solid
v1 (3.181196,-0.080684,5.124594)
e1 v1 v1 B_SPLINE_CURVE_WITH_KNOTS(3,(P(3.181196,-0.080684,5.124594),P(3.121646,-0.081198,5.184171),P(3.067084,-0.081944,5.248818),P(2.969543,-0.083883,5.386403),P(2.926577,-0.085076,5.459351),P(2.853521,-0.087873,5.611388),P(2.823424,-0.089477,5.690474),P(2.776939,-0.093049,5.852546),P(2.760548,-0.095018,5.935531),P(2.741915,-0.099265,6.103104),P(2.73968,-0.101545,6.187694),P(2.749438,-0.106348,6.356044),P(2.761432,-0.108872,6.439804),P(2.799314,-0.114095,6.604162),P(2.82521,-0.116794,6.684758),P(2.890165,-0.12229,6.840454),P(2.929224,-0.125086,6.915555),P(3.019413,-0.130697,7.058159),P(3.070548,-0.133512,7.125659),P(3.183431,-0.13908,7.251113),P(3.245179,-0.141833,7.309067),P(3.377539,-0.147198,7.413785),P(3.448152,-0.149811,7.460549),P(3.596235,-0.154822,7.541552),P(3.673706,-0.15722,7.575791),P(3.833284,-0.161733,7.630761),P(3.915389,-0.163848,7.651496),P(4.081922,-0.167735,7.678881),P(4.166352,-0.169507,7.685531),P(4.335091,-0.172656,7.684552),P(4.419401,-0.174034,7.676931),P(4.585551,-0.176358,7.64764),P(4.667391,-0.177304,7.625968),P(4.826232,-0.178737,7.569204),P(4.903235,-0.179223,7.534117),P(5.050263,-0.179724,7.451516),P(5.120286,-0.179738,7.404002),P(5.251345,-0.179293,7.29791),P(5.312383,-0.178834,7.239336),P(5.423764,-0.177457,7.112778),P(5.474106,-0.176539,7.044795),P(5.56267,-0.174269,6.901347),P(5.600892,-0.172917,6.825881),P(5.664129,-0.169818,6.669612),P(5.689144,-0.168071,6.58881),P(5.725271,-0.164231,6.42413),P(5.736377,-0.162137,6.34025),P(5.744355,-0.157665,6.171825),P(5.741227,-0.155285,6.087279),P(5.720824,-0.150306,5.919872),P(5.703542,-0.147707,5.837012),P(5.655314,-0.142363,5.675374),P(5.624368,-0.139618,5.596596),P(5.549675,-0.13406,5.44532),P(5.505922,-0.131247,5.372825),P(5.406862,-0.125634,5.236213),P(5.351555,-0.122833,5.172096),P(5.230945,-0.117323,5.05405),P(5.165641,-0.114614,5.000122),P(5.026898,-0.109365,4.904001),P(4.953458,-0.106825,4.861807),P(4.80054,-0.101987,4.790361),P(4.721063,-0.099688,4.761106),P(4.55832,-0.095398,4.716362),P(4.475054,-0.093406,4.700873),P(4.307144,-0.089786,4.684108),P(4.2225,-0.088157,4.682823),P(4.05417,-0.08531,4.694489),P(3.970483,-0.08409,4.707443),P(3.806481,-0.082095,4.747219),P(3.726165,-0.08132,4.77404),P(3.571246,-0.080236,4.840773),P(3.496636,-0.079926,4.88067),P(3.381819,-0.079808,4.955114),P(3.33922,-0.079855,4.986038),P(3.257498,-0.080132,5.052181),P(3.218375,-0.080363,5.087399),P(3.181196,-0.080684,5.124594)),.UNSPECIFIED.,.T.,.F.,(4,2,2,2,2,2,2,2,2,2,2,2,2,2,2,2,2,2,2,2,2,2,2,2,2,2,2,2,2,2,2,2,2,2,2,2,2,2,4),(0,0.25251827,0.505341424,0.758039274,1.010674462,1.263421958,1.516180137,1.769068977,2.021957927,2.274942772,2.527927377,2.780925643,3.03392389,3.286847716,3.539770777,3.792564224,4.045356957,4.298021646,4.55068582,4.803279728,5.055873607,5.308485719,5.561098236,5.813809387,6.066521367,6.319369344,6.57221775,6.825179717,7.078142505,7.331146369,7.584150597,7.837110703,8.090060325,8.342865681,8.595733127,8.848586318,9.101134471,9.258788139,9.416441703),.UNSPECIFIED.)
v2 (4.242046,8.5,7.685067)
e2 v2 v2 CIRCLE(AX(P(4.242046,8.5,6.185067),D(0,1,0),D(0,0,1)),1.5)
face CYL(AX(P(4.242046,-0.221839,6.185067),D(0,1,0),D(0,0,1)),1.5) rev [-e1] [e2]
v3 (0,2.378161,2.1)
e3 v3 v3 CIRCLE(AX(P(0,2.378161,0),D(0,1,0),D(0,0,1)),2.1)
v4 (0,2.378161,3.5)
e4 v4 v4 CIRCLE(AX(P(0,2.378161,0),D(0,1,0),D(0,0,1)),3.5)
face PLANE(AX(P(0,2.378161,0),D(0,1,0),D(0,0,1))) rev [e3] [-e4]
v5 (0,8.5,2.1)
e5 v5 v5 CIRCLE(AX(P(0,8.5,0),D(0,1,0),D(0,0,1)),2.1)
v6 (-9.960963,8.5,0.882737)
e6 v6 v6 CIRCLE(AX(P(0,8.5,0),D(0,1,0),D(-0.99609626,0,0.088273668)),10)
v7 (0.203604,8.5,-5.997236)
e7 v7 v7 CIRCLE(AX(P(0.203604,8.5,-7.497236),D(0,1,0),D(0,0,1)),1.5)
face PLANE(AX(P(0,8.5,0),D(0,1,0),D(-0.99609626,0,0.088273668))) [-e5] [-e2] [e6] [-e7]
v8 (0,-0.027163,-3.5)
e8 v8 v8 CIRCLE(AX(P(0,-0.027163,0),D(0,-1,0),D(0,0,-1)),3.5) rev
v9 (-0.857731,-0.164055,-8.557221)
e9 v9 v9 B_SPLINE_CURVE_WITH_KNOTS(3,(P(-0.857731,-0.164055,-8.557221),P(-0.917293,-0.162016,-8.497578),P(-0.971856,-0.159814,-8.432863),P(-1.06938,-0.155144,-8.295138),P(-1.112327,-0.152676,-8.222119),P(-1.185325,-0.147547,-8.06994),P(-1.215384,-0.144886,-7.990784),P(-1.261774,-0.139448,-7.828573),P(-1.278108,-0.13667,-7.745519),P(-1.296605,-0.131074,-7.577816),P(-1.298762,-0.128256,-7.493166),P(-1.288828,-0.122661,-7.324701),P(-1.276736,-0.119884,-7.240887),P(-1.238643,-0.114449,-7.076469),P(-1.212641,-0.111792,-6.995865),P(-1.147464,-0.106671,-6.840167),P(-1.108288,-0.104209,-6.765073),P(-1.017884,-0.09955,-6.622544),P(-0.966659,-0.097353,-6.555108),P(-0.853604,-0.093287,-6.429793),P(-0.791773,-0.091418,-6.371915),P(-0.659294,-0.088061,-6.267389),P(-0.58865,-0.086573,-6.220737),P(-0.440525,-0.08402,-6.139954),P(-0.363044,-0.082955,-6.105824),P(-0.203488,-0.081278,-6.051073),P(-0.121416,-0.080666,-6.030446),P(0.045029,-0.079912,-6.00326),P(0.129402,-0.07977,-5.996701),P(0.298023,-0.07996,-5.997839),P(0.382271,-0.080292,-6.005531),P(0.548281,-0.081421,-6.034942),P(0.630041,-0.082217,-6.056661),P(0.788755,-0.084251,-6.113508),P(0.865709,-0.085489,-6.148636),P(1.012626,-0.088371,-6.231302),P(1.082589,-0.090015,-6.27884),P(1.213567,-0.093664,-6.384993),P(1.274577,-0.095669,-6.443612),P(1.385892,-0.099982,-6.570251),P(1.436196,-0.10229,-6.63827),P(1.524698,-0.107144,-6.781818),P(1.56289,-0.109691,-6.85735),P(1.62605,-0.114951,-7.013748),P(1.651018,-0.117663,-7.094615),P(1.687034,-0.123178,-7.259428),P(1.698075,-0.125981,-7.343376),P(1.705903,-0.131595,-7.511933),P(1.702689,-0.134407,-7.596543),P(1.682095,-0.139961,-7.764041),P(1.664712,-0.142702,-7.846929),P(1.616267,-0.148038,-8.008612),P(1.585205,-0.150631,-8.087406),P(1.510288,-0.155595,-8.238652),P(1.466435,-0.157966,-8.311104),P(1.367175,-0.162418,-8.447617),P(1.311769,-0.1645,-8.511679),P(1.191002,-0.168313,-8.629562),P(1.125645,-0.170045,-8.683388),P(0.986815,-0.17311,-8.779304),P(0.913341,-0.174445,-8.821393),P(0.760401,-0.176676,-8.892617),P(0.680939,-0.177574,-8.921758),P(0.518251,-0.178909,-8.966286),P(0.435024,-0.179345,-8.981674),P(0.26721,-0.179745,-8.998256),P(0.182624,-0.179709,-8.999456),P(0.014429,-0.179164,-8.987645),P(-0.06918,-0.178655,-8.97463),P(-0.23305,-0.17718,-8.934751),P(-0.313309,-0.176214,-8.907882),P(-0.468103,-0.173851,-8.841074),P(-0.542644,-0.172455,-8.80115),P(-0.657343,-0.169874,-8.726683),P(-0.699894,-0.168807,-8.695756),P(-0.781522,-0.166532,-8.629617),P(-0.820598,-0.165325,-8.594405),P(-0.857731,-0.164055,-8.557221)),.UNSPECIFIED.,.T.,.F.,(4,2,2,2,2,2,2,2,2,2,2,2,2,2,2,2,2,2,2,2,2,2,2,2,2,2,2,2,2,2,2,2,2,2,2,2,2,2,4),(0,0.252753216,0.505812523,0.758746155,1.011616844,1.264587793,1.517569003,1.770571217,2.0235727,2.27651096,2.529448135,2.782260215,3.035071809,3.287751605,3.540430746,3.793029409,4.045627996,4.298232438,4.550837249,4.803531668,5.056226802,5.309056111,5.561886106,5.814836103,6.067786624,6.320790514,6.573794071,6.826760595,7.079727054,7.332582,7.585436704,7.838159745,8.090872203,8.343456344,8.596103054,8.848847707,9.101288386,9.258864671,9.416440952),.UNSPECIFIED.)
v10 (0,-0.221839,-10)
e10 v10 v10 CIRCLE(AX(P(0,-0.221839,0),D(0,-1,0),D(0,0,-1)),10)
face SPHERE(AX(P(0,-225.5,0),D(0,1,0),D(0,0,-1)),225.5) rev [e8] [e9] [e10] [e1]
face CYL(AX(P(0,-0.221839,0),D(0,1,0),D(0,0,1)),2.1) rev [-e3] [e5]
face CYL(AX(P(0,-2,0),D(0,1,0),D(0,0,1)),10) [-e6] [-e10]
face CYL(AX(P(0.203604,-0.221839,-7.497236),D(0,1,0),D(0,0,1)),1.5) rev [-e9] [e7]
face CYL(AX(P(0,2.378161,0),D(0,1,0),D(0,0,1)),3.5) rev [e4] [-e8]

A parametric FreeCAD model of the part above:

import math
import FreeCAD as App
import Part
import Sketcher

V = App.Vector


def add_polygon(sketch, points):
    """Adds a closed chain of lines whose ends are joined by coincident constraints."""
    first, n = sketch.GeometryCount, len(points)
    for a, b in zip(points, points[1:] + points[:1]):
        sketch.addGeometry(Part.LineSegment(App.Vector(*a, 0), App.Vector(*b, 0)), False)
    for i in range(n):
        sketch.addConstraint(Sketcher.Constraint("Coincident", first + i, 2, first + (i + 1) % n, 1))

doc = App.newDocument("Part")
body = doc.addObject("PartDesign::Body", "Body")

# Sketch on XZ plane
sketch1 = doc.addObject("Sketcher::SketchObject", "Sketch")
body.addObject(sketch1)
sketch1.AttachmentSupport = (doc.XZ_Plane, [""])
sketch1.MapMode = "FlatFace"
sketch1.addGeometry(Part.Circle(V(0, 0, 0), V(0, 0, 1), 10), False)
sketch1.addConstraint([
    Sketcher.Constraint("Coincident", 0, 3, -1, 1),
    Sketcher.Constraint("Diameter", 0, 20.0),
])
pad1 = doc.addObject("PartDesign::Pad", "Pad")
body.addObject(pad1)
pad1.Profile = sketch1
pad1.Type = "TwoLengths"
pad1.Length = 8.5
pad1.Length2 = 2
pad1.Reversed = True

# Sketch on YZ plane
sketch2 = doc.addObject("Sketcher::SketchObject", "Sketch001")
body.addObject(sketch2)
sketch2.AttachmentSupport = (doc.YZ_Plane, [""])
sketch2.MapMode = "FlatFace"
sketch2.addGeometry([
    Part.LineSegment(V(-451, 0, 0), V(0, 0, 0)),
    Part.ArcOfCircle(Part.Circle(V(-225.5, 0, 0), V(0, 0, 1), 225.5), math.radians(0), math.radians(180)),
], False)
sketch2.addConstraint([
    Sketcher.Constraint("Coincident", 0, 1, 1, 2),
    Sketcher.Constraint("Coincident", 1, 1, 0, 2),
    Sketcher.Constraint("Horizontal", 0),
    Sketcher.Constraint("Coincident", 1, 1, -1, 1),
    Sketcher.Constraint("PointOnObject", 1, 3, -1),
    Sketcher.Constraint("Radius", 1, 225.5),
])
groove = doc.addObject("PartDesign::Groove", "Groove")
body.addObject(groove)
groove.Profile = sketch2
groove.ReferenceAxis = (sketch2, ["H_Axis"])
groove.Angle = 360

# Sketch on YZ plane
sketch3 = doc.addObject("Sketcher::SketchObject", "Sketch002")
body.addObject(sketch3)
sketch3.AttachmentSupport = (doc.YZ_Plane, [""])
sketch3.MapMode = "FlatFace"
add_polygon(sketch3, [(2.378161, 3.5), (-0.221839, 3.5), (-0.221839, 0), (2.378161, 0)])  # lines 0-3
sketch3.addConstraint([
    Sketcher.Constraint("Horizontal", 0),
    Sketcher.Constraint("Vertical", 1),
    Sketcher.Constraint("Horizontal", 2),
    Sketcher.Constraint("Vertical", 3),
    Sketcher.Constraint("PointOnObject", 1, 2, -1),
    Sketcher.Constraint("DistanceX", 0, 2, 0, 1, 2.6),
    Sketcher.Constraint("DistanceY", 1, 2, 1, 1, 3.5),
    Sketcher.Constraint("DistanceX", 0, 2, -1, 1, 0.221839),
])
groove2 = doc.addObject("PartDesign::Groove", "Groove001")
body.addObject(groove2)
groove2.Profile = sketch3
groove2.ReferenceAxis = (sketch3, ["H_Axis"])
groove2.Angle = 360

# Sketch on XZ plane
sketch4 = doc.addObject("Sketcher::SketchObject", "Sketch003")
body.addObject(sketch4)
sketch4.AttachmentSupport = (doc.XZ_Plane, [""])
sketch4.MapMode = "FlatFace"
sketch4.AttachmentOffset = App.Placement(V(0, 0, -8.5), App.Rotation())
sketch4.addGeometry(Part.Circle(V(0, 0, 0), V(0, 0, 1), 2.1), False)
sketch4.addConstraint([
    Sketcher.Constraint("Coincident", 0, 3, -1, 1),
    Sketcher.Constraint("Diameter", 0, 4.2),
])
pocket1 = doc.addObject("PartDesign::Pocket", "Pocket")
body.addObject(pocket1)
pocket1.Profile = sketch4
pocket1.Type = "ThroughAll"
pocket1.Reversed = True

# Sketch on XZ plane
sketch5 = doc.addObject("Sketcher::SketchObject", "Sketch004")
body.addObject(sketch5)
sketch5.AttachmentSupport = (doc.XZ_Plane, [""])
sketch5.MapMode = "FlatFace"
sketch5.AttachmentOffset = App.Placement(V(0, 0, -8.5), App.Rotation())
sketch5.addGeometry([
    Part.Circle(V(0.203604, -7.497236, 0), V(0, 0, 1), 1.5),
    Part.Circle(V(4.242046, 6.185067, 0), V(0, 0, 1), 1.5),
], False)
sketch5.addConstraint([
    Sketcher.Constraint("Equal", 0, 1),
    Sketcher.Constraint("Diameter", 0, 3.0),
    Sketcher.Constraint("DistanceX", 0, 3, 1, 3, 4.038442),
    Sketcher.Constraint("DistanceX", -1, 1, 0, 3, 0.203604),
    Sketcher.Constraint("DistanceY", 0, 3, -1, 1, 7.497236),
    Sketcher.Constraint("DistanceY", -1, 1, 1, 3, 6.185067),
])
pocket2 = doc.addObject("PartDesign::Pocket", "Pocket001")
body.addObject(pocket2)
pocket2.Profile = sketch5
pocket2.Type = "ThroughAll"
pocket2.Reversed = True

doc.recompute()
